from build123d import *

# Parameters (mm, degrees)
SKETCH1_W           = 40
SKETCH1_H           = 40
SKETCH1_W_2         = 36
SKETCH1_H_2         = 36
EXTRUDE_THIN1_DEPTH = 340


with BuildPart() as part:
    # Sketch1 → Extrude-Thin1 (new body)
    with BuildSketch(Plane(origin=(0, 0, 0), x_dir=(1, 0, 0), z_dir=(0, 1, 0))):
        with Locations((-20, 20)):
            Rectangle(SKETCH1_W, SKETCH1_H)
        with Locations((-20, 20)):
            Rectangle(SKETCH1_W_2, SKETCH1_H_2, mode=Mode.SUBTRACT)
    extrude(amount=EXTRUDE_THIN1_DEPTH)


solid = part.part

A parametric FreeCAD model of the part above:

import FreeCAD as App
import Part
import Sketcher

V = App.Vector

doc = App.newDocument("Part")
body = doc.addObject("PartDesign::Body", "Body")

# Sketch on XZ plane
sketch1 = body.newObject("Sketcher::SketchObject", "Sketch")
sketch1.AttachmentSupport = (doc.getObject("XZ_Plane"), [""])
sketch1.MapMode = "FlatFace"
sketch1.addGeometry([
    Part.LineSegment(V(-40, -40, 0), V(-40, 0, 0)),  # 0
    Part.LineSegment(V(-40, 0, 0), V(0, 0, 0)),  # 1
    Part.LineSegment(V(0, 0, 0), V(0, -40, 0)),  # 2
    Part.LineSegment(V(0, -40, 0), V(-40, -40, 0)),  # 3
    Part.LineSegment(V(-2, -2, 0), V(-38, -2, 0)),  # 4
    Part.LineSegment(V(-38, -2, 0), V(-38, -38, 0)),  # 5
    Part.LineSegment(V(-38, -38, 0), V(-2, -38, 0)),  # 6
    Part.LineSegment(V(-2, -38, 0), V(-2, -2, 0)),  # 7
], False)
sketch1.addConstraint([
    Sketcher.Constraint("Coincident", 0, 2, 1, 1),
    Sketcher.Constraint("Coincident", 1, 2, 2, 1),
    Sketcher.Constraint("Coincident", 2, 2, 3, 1),
    Sketcher.Constraint("Coincident", 3, 2, 0, 1),
    Sketcher.Constraint("Coincident", 4, 2, 5, 1),
    Sketcher.Constraint("Coincident", 5, 2, 6, 1),
    Sketcher.Constraint("Coincident", 6, 2, 7, 1),
    Sketcher.Constraint("Coincident", 7, 2, 4, 1),
    Sketcher.Constraint("Vertical", 0),
    Sketcher.Constraint("Horizontal", 1),
    Sketcher.Constraint("Vertical", 2),
    Sketcher.Constraint("Horizontal", 3),
    Sketcher.Constraint("Horizontal", 4),
    Sketcher.Constraint("Vertical", 5),
    Sketcher.Constraint("Horizontal", 6),
    Sketcher.Constraint("Vertical", 7),
    Sketcher.Constraint("Coincident", 1, 2, -1, 1),
    Sketcher.Constraint("Equal", 3, 0),
    Sketcher.Constraint("Equal", 6, 5),
    Sketcher.Constraint("DistanceX", 1, 1, 1, 2, 40.0),
    Sketcher.Constraint("DistanceX", 4, 2, 4, 1, 36.0),
    Sketcher.Constraint("DistanceX", 4, 2, -1, 1, 38.0),
    Sketcher.Constraint("DistanceY", 4, 2, -1, 1, 2.0),
])
pad1 = body.newObject("PartDesign::Pad", "Pad")
pad1.Profile = sketch1
pad1.Length = 340
pad1.Reversed = True

doc.recompute()
